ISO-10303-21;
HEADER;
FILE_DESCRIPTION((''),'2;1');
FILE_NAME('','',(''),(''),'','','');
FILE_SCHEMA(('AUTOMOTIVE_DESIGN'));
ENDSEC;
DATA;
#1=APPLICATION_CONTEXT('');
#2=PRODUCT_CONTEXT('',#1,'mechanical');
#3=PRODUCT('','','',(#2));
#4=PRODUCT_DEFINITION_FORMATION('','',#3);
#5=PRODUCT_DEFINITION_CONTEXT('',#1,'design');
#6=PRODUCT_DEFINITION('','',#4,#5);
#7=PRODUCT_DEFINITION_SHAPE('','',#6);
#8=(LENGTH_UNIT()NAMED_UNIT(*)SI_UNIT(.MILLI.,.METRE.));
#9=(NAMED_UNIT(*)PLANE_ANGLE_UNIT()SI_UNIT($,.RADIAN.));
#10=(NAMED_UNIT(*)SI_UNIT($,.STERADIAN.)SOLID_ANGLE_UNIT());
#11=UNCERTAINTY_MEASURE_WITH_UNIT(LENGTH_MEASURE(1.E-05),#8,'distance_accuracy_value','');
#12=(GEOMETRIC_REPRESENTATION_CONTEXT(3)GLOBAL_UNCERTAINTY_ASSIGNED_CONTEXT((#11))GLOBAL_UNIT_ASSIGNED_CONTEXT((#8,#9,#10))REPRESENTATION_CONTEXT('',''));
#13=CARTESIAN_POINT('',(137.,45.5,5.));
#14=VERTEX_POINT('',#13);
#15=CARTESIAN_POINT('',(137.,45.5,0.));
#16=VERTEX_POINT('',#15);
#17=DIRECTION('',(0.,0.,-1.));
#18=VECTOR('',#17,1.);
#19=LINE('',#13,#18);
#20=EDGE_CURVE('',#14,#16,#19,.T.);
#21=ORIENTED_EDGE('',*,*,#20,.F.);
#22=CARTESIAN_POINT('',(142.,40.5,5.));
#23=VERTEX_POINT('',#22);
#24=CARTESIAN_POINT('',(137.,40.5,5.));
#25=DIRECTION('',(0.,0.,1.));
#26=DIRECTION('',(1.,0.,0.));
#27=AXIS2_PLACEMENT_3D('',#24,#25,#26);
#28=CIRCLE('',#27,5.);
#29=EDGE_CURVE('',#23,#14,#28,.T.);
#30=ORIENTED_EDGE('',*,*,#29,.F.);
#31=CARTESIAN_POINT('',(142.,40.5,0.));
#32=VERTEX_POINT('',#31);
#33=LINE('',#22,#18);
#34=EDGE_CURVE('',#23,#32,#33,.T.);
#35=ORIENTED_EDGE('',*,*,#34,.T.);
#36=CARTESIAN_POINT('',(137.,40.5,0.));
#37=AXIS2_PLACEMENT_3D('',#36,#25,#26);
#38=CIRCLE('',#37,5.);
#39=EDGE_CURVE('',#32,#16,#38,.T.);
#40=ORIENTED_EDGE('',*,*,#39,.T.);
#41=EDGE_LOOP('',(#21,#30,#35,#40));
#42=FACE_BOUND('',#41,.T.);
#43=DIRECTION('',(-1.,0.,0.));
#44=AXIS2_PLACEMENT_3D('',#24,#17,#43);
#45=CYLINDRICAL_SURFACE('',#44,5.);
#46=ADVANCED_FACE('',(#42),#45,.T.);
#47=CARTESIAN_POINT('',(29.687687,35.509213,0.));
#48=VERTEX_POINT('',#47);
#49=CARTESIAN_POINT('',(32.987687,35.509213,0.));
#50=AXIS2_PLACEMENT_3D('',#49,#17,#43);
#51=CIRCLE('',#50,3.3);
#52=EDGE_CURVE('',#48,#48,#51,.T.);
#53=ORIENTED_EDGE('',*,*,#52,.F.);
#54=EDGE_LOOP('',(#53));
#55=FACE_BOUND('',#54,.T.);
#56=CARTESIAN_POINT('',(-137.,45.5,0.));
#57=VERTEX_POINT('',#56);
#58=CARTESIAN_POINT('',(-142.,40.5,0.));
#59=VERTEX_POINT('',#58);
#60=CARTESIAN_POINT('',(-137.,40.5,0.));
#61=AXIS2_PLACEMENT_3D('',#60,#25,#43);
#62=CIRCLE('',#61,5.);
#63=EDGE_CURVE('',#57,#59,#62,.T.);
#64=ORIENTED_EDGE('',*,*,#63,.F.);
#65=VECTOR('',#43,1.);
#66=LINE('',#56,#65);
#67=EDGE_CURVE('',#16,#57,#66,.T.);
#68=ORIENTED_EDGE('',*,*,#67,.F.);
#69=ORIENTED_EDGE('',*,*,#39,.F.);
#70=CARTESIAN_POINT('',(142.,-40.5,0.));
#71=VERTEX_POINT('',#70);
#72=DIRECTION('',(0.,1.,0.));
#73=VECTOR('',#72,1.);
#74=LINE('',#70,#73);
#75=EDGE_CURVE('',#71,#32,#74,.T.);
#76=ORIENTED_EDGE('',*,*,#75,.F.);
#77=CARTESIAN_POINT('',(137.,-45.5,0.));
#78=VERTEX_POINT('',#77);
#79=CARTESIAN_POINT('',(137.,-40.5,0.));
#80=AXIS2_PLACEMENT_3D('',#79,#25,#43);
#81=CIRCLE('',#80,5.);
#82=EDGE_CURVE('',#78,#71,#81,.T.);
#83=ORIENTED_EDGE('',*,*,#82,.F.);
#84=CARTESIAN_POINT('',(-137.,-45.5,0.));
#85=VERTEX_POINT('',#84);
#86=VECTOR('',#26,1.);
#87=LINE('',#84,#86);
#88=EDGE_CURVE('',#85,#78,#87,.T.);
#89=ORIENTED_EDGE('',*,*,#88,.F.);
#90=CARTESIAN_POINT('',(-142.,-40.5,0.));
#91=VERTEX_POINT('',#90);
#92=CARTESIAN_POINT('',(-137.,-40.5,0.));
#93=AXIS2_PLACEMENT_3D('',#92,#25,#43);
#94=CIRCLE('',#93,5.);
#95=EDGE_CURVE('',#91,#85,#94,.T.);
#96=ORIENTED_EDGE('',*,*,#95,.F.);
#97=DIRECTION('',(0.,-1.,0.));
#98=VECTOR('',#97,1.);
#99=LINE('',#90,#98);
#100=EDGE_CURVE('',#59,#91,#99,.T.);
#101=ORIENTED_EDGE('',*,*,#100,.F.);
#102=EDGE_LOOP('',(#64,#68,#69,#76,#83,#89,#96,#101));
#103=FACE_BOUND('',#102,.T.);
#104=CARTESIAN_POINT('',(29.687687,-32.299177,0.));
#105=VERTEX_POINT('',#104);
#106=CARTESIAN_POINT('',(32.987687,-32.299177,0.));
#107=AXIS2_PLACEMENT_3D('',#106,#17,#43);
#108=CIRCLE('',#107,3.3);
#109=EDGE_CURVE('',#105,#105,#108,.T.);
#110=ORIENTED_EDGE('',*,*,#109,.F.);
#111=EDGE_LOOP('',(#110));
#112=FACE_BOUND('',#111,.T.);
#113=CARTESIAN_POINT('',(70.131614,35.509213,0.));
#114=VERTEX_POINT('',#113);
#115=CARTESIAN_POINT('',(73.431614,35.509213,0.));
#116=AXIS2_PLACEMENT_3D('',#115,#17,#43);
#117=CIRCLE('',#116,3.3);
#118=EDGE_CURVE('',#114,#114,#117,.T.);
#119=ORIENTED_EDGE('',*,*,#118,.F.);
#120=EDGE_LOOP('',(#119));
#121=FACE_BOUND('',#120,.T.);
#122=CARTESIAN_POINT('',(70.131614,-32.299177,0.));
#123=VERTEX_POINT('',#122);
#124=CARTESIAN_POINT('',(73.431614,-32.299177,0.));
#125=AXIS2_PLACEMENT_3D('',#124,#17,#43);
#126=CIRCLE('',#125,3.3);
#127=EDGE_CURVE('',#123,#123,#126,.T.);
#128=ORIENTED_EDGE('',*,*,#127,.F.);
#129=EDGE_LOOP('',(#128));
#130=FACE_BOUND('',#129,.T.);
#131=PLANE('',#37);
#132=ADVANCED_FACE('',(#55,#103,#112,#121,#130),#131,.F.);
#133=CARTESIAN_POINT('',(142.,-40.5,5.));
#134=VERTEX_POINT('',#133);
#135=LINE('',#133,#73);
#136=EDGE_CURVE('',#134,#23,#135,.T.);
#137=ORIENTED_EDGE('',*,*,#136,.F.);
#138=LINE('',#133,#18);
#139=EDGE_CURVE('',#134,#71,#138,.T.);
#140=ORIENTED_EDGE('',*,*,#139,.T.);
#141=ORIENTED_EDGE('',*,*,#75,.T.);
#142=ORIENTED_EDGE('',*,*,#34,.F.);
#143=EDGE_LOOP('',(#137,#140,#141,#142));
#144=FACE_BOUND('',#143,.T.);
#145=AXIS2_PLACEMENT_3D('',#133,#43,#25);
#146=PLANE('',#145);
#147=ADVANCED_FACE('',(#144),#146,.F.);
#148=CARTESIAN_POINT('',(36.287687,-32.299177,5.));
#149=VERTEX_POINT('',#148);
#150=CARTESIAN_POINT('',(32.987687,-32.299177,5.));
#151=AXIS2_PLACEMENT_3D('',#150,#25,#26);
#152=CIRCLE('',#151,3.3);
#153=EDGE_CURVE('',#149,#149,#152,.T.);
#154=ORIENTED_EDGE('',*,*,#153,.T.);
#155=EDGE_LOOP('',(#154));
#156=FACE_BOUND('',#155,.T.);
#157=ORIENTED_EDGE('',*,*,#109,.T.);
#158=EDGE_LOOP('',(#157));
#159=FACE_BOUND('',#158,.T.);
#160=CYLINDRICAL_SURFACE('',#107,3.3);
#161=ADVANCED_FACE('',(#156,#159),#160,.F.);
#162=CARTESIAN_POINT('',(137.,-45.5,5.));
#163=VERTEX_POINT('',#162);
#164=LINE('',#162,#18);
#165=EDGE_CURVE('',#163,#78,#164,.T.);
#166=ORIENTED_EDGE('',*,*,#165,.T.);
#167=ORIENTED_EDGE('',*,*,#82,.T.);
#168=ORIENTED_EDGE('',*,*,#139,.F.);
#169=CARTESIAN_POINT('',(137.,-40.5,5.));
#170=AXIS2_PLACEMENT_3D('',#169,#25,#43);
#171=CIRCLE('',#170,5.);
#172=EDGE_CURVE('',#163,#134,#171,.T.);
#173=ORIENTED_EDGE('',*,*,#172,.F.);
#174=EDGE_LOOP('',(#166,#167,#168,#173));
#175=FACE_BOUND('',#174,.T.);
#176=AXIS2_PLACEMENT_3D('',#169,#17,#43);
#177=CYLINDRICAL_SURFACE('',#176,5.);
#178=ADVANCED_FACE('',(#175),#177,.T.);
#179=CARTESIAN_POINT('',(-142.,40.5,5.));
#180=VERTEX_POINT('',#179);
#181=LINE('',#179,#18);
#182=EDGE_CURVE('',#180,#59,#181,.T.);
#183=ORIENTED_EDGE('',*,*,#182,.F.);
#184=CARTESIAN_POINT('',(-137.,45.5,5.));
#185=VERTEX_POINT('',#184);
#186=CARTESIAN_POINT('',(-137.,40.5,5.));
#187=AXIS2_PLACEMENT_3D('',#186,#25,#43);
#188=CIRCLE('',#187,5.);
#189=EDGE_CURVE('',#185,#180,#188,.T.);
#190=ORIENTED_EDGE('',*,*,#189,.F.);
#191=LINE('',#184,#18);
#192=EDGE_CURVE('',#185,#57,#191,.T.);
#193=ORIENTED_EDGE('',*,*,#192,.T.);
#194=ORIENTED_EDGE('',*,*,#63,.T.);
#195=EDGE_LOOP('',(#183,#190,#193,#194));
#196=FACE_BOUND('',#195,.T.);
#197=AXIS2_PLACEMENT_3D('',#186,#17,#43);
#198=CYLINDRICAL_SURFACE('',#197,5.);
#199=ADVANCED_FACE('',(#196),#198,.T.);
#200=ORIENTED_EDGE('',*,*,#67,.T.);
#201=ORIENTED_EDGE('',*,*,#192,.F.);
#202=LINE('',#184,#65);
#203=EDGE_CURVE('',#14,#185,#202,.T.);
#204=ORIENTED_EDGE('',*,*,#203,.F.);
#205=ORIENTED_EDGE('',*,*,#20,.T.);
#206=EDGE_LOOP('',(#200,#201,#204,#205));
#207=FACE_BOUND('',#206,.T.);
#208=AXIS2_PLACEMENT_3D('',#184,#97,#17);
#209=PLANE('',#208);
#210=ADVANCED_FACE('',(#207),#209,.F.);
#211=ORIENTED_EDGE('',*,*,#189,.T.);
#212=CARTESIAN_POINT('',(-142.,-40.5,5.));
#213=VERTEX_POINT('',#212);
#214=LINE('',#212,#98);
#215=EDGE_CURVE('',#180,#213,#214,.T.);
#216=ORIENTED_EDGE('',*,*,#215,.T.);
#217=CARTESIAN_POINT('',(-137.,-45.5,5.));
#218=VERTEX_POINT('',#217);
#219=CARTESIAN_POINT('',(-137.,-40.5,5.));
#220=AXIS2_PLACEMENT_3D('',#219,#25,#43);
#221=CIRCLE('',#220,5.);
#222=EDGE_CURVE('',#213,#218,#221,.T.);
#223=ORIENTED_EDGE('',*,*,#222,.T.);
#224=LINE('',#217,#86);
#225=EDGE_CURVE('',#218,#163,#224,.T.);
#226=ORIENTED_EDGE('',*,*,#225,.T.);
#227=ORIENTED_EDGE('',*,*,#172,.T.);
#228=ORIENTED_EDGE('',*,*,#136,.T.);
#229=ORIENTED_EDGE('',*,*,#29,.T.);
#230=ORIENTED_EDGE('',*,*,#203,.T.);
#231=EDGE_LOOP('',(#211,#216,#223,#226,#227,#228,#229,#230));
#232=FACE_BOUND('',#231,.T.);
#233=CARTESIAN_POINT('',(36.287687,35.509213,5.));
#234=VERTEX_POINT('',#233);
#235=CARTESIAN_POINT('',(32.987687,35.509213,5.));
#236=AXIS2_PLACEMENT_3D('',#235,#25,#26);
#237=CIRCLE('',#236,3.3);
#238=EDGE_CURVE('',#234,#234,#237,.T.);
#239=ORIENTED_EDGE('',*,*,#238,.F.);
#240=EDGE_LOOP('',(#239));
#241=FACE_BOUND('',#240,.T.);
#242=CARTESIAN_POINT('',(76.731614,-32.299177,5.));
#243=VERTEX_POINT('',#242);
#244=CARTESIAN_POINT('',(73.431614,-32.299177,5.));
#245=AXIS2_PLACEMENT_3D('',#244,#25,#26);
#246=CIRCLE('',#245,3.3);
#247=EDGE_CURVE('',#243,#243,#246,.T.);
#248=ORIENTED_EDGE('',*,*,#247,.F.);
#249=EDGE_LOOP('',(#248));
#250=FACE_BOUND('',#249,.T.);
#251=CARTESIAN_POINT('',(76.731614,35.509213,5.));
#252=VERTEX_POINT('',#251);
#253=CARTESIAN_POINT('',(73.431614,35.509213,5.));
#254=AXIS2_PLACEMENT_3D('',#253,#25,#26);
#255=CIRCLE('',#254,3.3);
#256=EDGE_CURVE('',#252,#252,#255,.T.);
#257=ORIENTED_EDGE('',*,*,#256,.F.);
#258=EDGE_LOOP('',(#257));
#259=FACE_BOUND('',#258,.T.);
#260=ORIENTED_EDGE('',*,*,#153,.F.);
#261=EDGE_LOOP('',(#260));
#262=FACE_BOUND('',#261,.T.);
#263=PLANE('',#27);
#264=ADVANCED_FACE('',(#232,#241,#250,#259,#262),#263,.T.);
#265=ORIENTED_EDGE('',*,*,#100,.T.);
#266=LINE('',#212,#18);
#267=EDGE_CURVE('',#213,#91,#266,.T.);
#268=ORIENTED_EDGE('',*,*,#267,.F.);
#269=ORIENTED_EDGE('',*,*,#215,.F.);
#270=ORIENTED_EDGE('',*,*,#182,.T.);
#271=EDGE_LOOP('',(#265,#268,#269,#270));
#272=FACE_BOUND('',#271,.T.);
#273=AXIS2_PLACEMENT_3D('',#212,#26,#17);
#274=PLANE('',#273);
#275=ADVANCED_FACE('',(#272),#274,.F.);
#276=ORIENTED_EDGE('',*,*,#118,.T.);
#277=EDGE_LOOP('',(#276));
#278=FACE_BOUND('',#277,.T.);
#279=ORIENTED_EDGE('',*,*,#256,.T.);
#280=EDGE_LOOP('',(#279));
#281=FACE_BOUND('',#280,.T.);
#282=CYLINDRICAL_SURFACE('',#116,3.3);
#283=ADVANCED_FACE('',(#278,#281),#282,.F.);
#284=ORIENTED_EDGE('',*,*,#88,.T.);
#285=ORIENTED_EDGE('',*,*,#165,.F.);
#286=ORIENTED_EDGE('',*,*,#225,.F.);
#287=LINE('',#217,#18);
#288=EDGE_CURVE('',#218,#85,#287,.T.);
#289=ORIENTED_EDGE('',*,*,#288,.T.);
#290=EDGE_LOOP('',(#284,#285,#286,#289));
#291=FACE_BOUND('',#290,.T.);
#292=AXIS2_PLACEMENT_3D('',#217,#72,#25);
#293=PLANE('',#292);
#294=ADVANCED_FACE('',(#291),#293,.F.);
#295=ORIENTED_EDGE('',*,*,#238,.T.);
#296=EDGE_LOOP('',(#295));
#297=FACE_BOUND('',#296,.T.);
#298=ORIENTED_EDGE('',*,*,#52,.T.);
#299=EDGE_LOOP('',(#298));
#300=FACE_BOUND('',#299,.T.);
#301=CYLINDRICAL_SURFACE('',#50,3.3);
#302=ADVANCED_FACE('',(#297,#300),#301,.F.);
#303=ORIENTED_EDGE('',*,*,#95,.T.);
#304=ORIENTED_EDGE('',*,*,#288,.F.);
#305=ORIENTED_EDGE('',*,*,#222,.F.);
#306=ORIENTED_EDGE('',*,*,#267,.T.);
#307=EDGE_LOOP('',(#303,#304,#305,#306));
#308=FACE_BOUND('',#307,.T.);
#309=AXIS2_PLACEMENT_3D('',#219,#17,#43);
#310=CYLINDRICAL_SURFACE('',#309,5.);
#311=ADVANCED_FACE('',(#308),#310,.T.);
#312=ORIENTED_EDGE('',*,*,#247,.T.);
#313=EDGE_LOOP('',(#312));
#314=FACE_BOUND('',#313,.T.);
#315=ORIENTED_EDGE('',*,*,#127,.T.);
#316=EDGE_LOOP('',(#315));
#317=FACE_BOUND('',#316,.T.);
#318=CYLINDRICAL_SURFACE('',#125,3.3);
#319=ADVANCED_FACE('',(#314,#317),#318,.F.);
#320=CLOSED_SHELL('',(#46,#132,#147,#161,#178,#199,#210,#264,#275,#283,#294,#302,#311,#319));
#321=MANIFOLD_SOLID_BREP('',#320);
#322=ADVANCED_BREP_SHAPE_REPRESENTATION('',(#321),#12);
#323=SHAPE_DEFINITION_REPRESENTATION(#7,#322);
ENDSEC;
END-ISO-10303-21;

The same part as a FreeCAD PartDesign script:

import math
import FreeCAD as App
import Part
import Sketcher
from FreeCAD import Vector
Q = App.Units.Quantity

doc = App.newDocument("Part")
body = doc.addObject("PartDesign::Body", "Body")

# Sketch on XY plane
sketch1 = body.newObject("Sketcher::SketchObject", "Sketch")
sketch1.AttachmentSupport = (doc.getObject("XY_Plane"), [""])
sketch1.MapMode = "FlatFace"
sketch1.addGeometry([
    Part.LineSegment(Vector(-137, -45.5, 0), Vector(137, -45.5, 0)),  # 0
    Part.ArcOfCircle(Part.Circle(Vector(137, -40.5, 0), Vector(0, 0, 1), 5), math.radians(-90), math.radians(0)),  # 1
    Part.LineSegment(Vector(142, -40.5, 0), Vector(142, 40.5, 0)),  # 2
    Part.ArcOfCircle(Part.Circle(Vector(137, 40.5, 0), Vector(0, 0, 1), 5), math.radians(0), math.radians(90)),  # 3
    Part.LineSegment(Vector(137, 45.5, 0), Vector(-137, 45.5, 0)),  # 4
    Part.ArcOfCircle(Part.Circle(Vector(-137, 40.5, 0), Vector(0, 0, 1), 5), math.radians(90), math.radians(180)),  # 5
    Part.LineSegment(Vector(-142, 40.5, 0), Vector(-142, -40.5, 0)),  # 6
    Part.ArcOfCircle(Part.Circle(Vector(-137, -40.5, 0), Vector(0, 0, 1), 5), math.radians(180), math.radians(270)),  # 7
], False)
sketch1.addConstraint([
    Sketcher.Constraint("Tangent", 0, 2, 1, 1),
    Sketcher.Constraint("Tangent", 1, 2, 2, 1),
    Sketcher.Constraint("Tangent", 2, 2, 3, 1),
    Sketcher.Constraint("Tangent", 3, 2, 4, 1),
    Sketcher.Constraint("Tangent", 4, 2, 5, 1),
    Sketcher.Constraint("Tangent", 5, 2, 6, 1),
    Sketcher.Constraint("Tangent", 6, 2, 7, 1),
    Sketcher.Constraint("Tangent", 7, 2, 0, 1),
    Sketcher.Constraint("Horizontal", 0),
    Sketcher.Constraint("Vertical", 2),
    Sketcher.Constraint("Horizontal", 4),
    Sketcher.Constraint("Vertical", 6),
    Sketcher.Constraint("Equal", 1, 3),
    Sketcher.Constraint("Equal", 3, 5),
    Sketcher.Constraint("Equal", 5, 7),
    Sketcher.Constraint("Symmetric", 1, 3, 5, 3, -1, 1),
    Sketcher.Constraint("Radius", 1, Q("5 mm")),
    Sketcher.Constraint("DistanceX", 0, 1, 0, 2, Q("274 mm")),
    Sketcher.Constraint("DistanceY", 2, 1, 2, 2, Q("81 mm")),
])
pad1 = body.newObject("PartDesign::Pad", "Pad")
pad1.Profile = sketch1
pad1.Length = 5

# Sketch on XY plane
sketch2 = body.newObject("Sketcher::SketchObject", "Sketch001")
sketch2.AttachmentSupport = (doc.getObject("XY_Plane"), [""])
sketch2.MapMode = "FlatFace"
sketch2.addGeometry([
    Part.Circle(Vector(73.431614, -32.299177, 0), Vector(0, 0, 1), 3.3),
    Part.Circle(Vector(32.987687, -32.299177, 0), Vector(0, 0, 1), 3.3),
    Part.Circle(Vector(32.987687, 35.509213, 0), Vector(0, 0, 1), 3.3),
    Part.Circle(Vector(73.431614, 35.509213, 0), Vector(0, 0, 1), 3.3),
], False)
sketch2.addConstraint([
    Sketcher.Constraint("Equal", 0, 1),
    Sketcher.Constraint("Equal", 1, 2),
    Sketcher.Constraint("Equal", 2, 3),
    Sketcher.Constraint("Horizontal", 0, 3, 1, 3),
    Sketcher.Constraint("Horizontal", 2, 3, 3, 3),
    Sketcher.Constraint("Vertical", 1, 3, 2, 3),
    Sketcher.Constraint("Vertical", 0, 3, 3, 3),
    Sketcher.Constraint("Diameter", 0, Q("6.6 mm")),
    Sketcher.Constraint("DistanceY", 1, 3, 2, 3, Q("67.80839 mm")),
    Sketcher.Constraint("DistanceX", -1, 1, 0, 3, Q("73.431614 mm")),
    Sketcher.Constraint("DistanceY", 0, 3, -1, 1, Q("32.299177 mm")),
    Sketcher.Constraint("DistanceX", -1, 1, 1, 3, Q("32.987687 mm")),
])
doc.recompute()
hole = body.newObject("PartDesign::Hole", "Hole")
hole.Profile = sketch2
hole.ThreadType = "None"
hole.Diameter = 6.6
hole.DepthType = "Dimension"
hole.Depth = 6
hole.DrillPoint = "Angled"
hole.DrillPointAngle = 118
hole.Reversed = True

doc.recompute()
